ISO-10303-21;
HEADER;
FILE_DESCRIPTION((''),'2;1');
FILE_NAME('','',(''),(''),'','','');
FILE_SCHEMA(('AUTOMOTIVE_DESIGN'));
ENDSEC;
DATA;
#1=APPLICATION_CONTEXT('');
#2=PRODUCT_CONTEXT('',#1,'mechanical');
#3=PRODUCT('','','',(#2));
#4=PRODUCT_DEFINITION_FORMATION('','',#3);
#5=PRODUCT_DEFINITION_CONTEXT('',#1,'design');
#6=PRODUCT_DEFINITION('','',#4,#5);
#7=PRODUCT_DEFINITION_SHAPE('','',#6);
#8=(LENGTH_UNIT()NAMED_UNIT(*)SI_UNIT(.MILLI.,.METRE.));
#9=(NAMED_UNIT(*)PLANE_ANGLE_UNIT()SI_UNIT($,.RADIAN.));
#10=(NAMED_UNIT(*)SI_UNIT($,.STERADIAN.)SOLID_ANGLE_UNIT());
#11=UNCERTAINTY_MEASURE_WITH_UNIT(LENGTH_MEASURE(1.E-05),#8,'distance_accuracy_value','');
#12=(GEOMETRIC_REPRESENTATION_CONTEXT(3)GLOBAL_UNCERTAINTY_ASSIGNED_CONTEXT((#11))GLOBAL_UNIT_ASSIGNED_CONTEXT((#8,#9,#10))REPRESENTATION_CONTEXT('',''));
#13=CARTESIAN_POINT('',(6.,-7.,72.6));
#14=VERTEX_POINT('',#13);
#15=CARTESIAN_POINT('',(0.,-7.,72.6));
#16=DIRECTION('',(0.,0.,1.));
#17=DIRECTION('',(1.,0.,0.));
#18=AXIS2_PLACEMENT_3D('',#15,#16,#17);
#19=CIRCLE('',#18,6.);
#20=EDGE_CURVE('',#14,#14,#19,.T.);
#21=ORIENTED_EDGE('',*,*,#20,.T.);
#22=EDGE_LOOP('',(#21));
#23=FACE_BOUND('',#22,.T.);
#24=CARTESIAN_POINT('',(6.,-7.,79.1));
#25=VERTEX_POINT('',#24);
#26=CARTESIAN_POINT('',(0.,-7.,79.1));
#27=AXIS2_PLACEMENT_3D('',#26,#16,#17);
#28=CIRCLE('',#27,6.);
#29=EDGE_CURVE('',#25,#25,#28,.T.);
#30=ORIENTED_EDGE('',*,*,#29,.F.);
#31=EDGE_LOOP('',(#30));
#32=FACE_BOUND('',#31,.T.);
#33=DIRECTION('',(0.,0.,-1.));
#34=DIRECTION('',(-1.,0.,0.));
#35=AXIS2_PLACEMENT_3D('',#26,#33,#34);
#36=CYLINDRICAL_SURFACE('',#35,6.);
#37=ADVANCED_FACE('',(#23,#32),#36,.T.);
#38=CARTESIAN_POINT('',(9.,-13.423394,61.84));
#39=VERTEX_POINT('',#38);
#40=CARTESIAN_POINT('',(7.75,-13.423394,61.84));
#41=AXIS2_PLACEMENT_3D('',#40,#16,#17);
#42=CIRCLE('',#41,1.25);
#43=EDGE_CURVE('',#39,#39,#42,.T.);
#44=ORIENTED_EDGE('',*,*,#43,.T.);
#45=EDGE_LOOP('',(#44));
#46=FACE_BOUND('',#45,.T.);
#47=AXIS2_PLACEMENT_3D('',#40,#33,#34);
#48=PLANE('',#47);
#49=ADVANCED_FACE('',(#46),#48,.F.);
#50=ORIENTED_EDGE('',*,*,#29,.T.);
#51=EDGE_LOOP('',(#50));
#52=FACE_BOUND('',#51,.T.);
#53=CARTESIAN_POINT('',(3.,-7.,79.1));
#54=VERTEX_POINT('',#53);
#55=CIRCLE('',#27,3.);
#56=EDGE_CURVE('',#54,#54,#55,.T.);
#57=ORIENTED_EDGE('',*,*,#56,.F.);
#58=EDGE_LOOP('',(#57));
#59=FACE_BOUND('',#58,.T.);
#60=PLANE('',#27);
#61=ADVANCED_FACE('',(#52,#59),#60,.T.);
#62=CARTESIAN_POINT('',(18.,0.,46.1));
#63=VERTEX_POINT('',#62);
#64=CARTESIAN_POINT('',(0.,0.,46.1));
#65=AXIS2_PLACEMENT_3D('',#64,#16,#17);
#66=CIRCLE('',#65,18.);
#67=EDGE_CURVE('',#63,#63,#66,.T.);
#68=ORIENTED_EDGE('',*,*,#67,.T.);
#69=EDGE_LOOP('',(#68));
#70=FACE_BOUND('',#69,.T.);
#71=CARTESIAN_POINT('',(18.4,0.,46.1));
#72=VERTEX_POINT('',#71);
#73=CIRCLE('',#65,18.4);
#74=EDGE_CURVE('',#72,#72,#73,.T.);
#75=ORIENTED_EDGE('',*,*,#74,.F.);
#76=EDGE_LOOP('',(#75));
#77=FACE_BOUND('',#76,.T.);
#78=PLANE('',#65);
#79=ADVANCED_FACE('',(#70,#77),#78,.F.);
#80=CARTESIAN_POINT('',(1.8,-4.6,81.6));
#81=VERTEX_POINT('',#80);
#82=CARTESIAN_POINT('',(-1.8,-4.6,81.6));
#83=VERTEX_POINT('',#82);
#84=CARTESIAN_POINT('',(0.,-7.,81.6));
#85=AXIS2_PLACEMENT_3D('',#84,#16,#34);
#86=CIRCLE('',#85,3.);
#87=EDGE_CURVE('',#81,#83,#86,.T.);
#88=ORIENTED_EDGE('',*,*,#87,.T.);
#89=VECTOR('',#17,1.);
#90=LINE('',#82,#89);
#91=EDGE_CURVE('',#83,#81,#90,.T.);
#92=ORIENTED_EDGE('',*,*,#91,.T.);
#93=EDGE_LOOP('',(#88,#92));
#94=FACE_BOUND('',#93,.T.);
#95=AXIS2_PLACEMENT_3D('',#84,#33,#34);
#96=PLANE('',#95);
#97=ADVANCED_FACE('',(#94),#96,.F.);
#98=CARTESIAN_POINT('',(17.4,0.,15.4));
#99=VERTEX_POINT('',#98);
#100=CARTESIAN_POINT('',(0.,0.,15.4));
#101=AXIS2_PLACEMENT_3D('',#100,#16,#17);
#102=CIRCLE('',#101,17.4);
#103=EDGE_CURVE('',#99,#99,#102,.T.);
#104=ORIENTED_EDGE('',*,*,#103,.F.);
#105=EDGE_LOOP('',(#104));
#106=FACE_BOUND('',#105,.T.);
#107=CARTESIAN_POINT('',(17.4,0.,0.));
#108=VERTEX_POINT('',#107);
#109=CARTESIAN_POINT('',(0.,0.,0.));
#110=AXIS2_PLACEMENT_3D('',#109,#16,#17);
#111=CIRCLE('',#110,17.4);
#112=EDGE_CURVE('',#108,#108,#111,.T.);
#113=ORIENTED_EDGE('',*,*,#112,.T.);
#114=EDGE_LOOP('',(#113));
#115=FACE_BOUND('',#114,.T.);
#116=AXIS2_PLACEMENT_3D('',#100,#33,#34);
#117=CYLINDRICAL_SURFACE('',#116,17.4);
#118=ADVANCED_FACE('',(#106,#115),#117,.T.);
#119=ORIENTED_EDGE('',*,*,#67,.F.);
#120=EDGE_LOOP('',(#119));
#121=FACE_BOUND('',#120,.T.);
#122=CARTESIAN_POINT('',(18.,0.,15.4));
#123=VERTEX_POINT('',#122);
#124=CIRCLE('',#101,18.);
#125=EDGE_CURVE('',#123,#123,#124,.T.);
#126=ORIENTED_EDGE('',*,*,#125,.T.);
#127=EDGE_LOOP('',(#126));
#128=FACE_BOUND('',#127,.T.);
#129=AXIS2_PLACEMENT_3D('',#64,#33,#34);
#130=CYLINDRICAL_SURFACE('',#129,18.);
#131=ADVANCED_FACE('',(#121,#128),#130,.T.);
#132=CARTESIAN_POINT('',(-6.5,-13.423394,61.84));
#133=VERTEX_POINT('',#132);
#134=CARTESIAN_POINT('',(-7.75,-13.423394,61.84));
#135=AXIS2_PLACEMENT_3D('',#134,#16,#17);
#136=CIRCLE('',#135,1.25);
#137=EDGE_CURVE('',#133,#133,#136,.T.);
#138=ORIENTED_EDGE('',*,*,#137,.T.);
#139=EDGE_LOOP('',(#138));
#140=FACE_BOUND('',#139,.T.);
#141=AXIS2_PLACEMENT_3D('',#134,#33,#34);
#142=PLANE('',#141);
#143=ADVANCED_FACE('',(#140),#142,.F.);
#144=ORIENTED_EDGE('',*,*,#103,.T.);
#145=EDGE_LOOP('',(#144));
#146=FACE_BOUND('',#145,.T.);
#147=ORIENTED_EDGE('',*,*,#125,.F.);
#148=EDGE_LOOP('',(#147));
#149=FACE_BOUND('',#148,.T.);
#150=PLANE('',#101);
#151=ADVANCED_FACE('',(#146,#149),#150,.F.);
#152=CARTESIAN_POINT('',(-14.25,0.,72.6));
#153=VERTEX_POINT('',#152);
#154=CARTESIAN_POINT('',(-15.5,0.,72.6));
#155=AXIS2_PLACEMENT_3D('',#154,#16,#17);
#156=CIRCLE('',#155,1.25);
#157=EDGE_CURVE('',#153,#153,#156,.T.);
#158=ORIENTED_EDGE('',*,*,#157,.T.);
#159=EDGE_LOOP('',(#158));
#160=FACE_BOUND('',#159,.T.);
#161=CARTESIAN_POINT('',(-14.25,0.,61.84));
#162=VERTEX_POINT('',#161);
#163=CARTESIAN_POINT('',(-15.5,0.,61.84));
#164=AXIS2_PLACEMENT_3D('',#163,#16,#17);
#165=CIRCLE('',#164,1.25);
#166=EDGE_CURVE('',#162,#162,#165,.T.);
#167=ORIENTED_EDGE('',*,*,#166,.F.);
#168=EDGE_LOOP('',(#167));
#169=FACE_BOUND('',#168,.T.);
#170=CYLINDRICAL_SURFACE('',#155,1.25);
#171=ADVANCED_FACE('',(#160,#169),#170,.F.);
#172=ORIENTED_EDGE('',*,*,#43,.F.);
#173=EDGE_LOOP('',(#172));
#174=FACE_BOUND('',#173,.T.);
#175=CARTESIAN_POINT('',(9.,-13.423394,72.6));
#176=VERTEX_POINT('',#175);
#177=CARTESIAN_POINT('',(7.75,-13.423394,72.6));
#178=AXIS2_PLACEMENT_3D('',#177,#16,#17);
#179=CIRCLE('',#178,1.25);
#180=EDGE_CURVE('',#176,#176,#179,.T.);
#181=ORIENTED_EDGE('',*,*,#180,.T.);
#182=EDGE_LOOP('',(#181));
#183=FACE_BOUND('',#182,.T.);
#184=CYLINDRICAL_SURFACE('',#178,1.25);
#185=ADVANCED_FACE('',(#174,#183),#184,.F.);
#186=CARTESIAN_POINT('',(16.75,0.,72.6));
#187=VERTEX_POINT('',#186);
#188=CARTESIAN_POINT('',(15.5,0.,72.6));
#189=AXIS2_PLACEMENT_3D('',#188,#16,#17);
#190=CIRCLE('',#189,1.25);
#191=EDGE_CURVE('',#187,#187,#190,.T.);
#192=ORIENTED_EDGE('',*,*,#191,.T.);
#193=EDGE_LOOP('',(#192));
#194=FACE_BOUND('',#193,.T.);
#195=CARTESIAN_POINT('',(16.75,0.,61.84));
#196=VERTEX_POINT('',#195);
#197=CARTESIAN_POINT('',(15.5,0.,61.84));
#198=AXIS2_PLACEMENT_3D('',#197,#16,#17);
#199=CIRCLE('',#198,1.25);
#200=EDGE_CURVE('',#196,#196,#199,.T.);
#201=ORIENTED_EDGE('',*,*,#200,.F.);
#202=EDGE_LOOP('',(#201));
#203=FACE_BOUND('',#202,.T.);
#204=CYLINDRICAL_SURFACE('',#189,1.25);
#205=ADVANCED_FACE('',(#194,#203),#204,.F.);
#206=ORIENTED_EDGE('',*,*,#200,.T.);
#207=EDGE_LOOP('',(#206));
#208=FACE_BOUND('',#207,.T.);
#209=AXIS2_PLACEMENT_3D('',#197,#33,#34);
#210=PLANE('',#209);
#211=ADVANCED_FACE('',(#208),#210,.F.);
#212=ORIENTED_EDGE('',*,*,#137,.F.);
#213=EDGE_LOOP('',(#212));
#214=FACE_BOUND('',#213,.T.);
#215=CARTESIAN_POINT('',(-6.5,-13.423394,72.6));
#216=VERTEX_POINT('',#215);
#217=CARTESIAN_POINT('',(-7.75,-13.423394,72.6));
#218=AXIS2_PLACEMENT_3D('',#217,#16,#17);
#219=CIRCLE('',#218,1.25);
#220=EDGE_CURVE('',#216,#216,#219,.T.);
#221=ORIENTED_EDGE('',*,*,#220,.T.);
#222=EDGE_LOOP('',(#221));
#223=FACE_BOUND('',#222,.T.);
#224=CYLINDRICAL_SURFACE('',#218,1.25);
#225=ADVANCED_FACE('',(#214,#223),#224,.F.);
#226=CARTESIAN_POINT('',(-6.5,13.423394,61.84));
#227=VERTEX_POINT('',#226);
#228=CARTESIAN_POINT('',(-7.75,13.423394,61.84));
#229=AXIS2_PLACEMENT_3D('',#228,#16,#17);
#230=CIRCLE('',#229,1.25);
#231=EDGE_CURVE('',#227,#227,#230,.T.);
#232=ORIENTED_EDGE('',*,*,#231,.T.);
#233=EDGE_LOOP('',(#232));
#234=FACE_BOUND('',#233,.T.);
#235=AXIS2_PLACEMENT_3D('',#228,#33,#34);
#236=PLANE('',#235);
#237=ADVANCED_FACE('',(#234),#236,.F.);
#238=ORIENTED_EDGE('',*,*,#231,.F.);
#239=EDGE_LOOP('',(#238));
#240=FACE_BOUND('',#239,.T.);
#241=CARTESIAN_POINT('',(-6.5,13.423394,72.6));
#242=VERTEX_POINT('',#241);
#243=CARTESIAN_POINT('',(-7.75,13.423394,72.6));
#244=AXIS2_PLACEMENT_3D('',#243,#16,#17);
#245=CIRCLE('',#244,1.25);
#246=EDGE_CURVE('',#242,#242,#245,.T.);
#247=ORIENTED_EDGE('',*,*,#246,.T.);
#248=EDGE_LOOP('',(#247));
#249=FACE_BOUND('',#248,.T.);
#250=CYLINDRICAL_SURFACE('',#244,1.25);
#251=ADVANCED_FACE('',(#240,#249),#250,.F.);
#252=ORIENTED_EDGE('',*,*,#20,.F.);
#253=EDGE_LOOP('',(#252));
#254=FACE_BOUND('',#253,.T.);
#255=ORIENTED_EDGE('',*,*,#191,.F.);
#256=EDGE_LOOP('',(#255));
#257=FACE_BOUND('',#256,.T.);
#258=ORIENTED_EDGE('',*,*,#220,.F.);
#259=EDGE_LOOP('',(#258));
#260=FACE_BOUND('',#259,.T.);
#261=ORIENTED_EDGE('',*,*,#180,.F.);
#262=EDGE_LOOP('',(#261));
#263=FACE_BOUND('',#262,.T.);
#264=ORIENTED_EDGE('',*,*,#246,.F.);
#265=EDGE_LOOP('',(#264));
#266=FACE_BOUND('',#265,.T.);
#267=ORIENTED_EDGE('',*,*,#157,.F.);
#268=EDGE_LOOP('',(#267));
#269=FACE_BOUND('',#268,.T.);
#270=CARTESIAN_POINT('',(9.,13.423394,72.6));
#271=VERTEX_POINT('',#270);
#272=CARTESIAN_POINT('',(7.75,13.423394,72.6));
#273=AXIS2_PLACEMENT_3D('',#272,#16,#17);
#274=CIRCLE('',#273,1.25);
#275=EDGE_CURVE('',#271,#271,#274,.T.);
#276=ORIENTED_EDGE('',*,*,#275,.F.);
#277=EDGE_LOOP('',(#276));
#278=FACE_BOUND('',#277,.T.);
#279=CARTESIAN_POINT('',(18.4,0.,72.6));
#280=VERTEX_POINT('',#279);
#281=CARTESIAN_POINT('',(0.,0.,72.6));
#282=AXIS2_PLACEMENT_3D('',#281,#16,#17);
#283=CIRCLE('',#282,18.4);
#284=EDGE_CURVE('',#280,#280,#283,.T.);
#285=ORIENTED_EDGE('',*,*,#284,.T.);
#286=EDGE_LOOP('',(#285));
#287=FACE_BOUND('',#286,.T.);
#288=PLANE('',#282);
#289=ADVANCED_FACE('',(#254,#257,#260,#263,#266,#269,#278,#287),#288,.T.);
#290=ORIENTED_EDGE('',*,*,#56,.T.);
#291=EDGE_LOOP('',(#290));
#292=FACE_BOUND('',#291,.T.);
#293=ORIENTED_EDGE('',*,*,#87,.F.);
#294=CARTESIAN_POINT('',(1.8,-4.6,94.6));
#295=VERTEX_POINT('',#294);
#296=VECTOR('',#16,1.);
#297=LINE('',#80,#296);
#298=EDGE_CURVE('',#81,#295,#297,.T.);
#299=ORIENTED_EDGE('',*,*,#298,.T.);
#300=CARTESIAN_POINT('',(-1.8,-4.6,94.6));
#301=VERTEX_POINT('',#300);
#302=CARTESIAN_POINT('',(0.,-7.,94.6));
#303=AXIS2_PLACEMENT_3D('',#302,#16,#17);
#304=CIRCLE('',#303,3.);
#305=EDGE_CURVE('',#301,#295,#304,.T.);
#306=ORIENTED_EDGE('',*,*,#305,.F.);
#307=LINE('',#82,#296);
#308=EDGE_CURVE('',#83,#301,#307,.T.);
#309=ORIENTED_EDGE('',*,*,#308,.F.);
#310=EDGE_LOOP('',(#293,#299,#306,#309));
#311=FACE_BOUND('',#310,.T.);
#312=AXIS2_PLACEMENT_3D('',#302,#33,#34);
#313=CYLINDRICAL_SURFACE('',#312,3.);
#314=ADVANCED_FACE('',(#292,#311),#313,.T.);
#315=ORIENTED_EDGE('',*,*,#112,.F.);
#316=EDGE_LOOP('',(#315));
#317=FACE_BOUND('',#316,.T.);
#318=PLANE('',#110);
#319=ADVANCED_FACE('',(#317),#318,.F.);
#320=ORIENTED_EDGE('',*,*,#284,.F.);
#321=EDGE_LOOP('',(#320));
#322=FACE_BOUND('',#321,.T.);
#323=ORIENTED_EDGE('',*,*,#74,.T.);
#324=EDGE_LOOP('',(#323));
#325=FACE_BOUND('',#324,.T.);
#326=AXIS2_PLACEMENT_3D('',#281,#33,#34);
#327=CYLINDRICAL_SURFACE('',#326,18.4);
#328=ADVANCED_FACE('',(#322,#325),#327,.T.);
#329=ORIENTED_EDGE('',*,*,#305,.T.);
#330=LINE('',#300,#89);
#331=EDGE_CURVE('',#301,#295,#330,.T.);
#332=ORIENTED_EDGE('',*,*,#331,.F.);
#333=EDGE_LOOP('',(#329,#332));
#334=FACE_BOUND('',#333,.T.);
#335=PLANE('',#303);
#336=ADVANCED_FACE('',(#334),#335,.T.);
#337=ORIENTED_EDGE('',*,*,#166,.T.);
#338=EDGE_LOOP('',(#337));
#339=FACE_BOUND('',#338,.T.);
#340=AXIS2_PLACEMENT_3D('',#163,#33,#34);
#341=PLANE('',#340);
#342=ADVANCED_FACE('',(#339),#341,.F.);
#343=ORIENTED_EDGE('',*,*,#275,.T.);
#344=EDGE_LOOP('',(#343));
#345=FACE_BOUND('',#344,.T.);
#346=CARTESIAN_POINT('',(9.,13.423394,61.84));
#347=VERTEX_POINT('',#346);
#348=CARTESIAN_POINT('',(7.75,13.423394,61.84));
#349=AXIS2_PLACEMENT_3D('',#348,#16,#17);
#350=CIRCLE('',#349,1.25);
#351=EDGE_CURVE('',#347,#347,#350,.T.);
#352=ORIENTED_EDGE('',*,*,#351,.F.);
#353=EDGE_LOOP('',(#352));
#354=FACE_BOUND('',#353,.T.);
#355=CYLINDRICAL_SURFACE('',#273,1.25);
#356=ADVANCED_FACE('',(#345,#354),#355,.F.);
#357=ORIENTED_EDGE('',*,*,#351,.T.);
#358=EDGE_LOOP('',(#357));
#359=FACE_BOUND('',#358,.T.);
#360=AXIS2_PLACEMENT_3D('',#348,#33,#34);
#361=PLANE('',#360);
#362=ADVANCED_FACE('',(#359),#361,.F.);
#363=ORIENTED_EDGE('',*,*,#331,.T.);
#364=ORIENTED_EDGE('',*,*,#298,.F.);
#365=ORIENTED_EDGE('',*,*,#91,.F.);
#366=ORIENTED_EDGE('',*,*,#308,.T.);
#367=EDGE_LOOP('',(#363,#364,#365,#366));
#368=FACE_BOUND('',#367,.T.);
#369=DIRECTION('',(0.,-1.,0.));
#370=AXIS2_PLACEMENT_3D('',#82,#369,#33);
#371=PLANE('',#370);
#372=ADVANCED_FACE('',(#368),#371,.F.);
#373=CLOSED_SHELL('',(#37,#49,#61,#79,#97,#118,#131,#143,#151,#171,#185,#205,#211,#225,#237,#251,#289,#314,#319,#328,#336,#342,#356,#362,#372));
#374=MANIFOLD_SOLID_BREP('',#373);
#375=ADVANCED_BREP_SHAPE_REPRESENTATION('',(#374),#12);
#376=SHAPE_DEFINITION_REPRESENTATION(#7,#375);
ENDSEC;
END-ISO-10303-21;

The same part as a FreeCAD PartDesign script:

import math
import FreeCAD as App
import Part
import Sketcher

doc = App.newDocument("Part")
body = doc.addObject("PartDesign::Body", "Body")

# Sketch on XY plane
sketch1 = body.newObject("Sketcher::SketchObject", "Sketch")
sketch1.AttachmentSupport = (doc.getObject("XY_Plane"), [""])
sketch1.MapMode = "FlatFace"
sketch1.addGeometry(Part.Circle(App.Vector(0, 0, 0), App.Vector(0, 0, 1), 17.4), False)
sketch1.addConstraint([
    Sketcher.Constraint("Coincident", 0, 3, -1, 1),
    Sketcher.Constraint("Diameter", 0, 34.8),
])
pad1 = body.newObject("PartDesign::Pad", "Pad")
pad1.Profile = sketch1
pad1.Length = 15.4

# Sketch on XY plane
sketch2 = body.newObject("Sketcher::SketchObject", "Sketch001")
sketch2.AttachmentSupport = (doc.getObject("XY_Plane"), [""])
sketch2.MapMode = "FlatFace"
sketch2.AttachmentOffset = App.Placement(App.Vector(0, 0, 15.4), App.Rotation())
sketch2.addGeometry(Part.Circle(App.Vector(0, 0, 0), App.Vector(0, 0, 1), 18), False)
sketch2.addConstraint([
    Sketcher.Constraint("Coincident", 0, 3, -1, 1),
    Sketcher.Constraint("Diameter", 0, 36.0),
])
pad2 = body.newObject("PartDesign::Pad", "Pad001")
pad2.Profile = sketch2
pad2.Length = 30.7

# Sketch on XY plane
sketch3 = body.newObject("Sketcher::SketchObject", "Sketch002")
sketch3.AttachmentSupport = (doc.getObject("XY_Plane"), [""])
sketch3.MapMode = "FlatFace"
sketch3.AttachmentOffset = App.Placement(App.Vector(0, 0, 46.1), App.Rotation())
sketch3.addGeometry(Part.Circle(App.Vector(0, 0, 0), App.Vector(0, 0, 1), 18.4), False)
sketch3.addConstraint([
    Sketcher.Constraint("Coincident", 0, 3, -1, 1),
    Sketcher.Constraint("Diameter", 0, 36.8),
])
pad3 = body.newObject("PartDesign::Pad", "Pad002")
pad3.Profile = sketch3
pad3.Length = 26.5

# Sketch on XY plane
sketch4 = body.newObject("Sketcher::SketchObject", "Sketch003")
sketch4.AttachmentSupport = (doc.getObject("XY_Plane"), [""])
sketch4.MapMode = "FlatFace"
sketch4.AttachmentOffset = App.Placement(App.Vector(0, 0, 72.6), App.Rotation())
sketch4.addGeometry(Part.Circle(App.Vector(0, -7, 0), App.Vector(0, 0, 1), 6), False)
sketch4.addConstraint([
    Sketcher.Constraint("PointOnObject", 0, 3, -2),
    Sketcher.Constraint("Diameter", 0, 12.0),
    Sketcher.Constraint("DistanceY", 0, 3, -1, 1, 7.0),
])
pad4 = body.newObject("PartDesign::Pad", "Pad003")
pad4.Profile = sketch4
pad4.Length = 6.5

# Sketch on XY plane
sketch5 = body.newObject("Sketcher::SketchObject", "Sketch004")
sketch5.AttachmentSupport = (doc.getObject("XY_Plane"), [""])
sketch5.MapMode = "FlatFace"
sketch5.AttachmentOffset = App.Placement(App.Vector(0, 0, 79.1), App.Rotation())
sketch5.addGeometry(Part.Circle(App.Vector(0, -7, 0), App.Vector(0, 0, 1), 3), False)
sketch5.addConstraint([
    Sketcher.Constraint("PointOnObject", 0, 3, -2),
    Sketcher.Constraint("Diameter", 0, 6.0),
    Sketcher.Constraint("DistanceY", 0, 3, -1, 1, 7.0),
])
pad5 = body.newObject("PartDesign::Pad", "Pad004")
pad5.Profile = sketch5
pad5.Length = 15.5

# Sketch on XY plane
sketch6 = body.newObject("Sketcher::SketchObject", "Sketch005")
sketch6.AttachmentSupport = (doc.getObject("XY_Plane"), [""])
sketch6.MapMode = "FlatFace"
sketch6.AttachmentOffset = App.Placement(App.Vector(0, 0, 94.6), App.Rotation())
sketch6.addGeometry([
    Part.LineSegment(App.Vector(-1.8, -4.6, 0), App.Vector(1.8, -4.6, 0)),
    Part.ArcOfCircle(Part.Circle(App.Vector(0, -7, 0), App.Vector(0, 0, 1), 3), math.radians(53.130102), math.radians(126.869898)),
], False)
sketch6.addConstraint([
    Sketcher.Constraint("Coincident", 0, 1, 1, 2),
    Sketcher.Constraint("Coincident", 1, 1, 0, 2),
    Sketcher.Constraint("Horizontal", 0),
    Sketcher.Constraint("PointOnObject", 1, 3, -2),
    Sketcher.Constraint("Radius", 1, 3.0),
    Sketcher.Constraint("DistanceX", 0, 1, 0, 2, 3.6),
    Sketcher.Constraint("DistanceY", 1, 3, -1, 1, 7.0),
])
pocket1 = body.newObject("PartDesign::Pocket", "Pocket")
pocket1.Profile = sketch6
pocket1.Length = 13

# Sketch on XY plane
sketch7 = body.newObject("Sketcher::SketchObject", "Sketch006")
sketch7.AttachmentSupport = (doc.getObject("XY_Plane"), [""])
sketch7.MapMode = "FlatFace"
sketch7.AttachmentOffset = App.Placement(App.Vector(0, 0, 72.6), App.Rotation())
sketch7.addGeometry([
    Part.Circle(App.Vector(-15.5, 0, 0), App.Vector(0, 0, 1), 1.25),  # 0
    Part.Circle(App.Vector(-7.75, 13.423394, 0), App.Vector(0, 0, 1), 1.25),  # 1
    Part.Circle(App.Vector(7.75, 13.423394, 0), App.Vector(0, 0, 1), 1.25),  # 2
    Part.Circle(App.Vector(15.5, 0, 0), App.Vector(0, 0, 1), 1.25),  # 3
    Part.Circle(App.Vector(7.75, -13.423394, 0), App.Vector(0, 0, 1), 1.25),  # 4
    Part.Circle(App.Vector(-7.75, -13.423394, 0), App.Vector(0, 0, 1), 1.25),  # 5
], False)
sketch7.addConstraint([
    Sketcher.Constraint("Equal", 0, 1),
    Sketcher.Constraint("Equal", 1, 2),
    Sketcher.Constraint("Equal", 2, 3),
    Sketcher.Constraint("Equal", 3, 4),
    Sketcher.Constraint("Equal", 4, 5),
    Sketcher.Constraint("Symmetric", 0, 3, 3, 3, -1, 1),
    Sketcher.Constraint("Symmetric", 1, 3, 4, 3, -1, 1),
    Sketcher.Constraint("Symmetric", 2, 3, 5, 3, -1, 1),
    Sketcher.Constraint("Symmetric", 1, 3, 2, 3, -2),
    Sketcher.Constraint("PointOnObject", 0, 3, -1),
    Sketcher.Constraint("Diameter", 0, 2.5),
    Sketcher.Constraint("DistanceX", 0, 3, 3, 3, 31.0),
    Sketcher.Constraint("DistanceX", 1, 3, 2, 3, 15.5),
    Sketcher.Constraint("DistanceY", -1, 1, 1, 3, 13.423394),
])
doc.recompute()
hole = body.newObject("PartDesign::Hole", "Hole")
hole.Profile = sketch7
hole.ThreadType = "None"
hole.Diameter = 2.5
hole.DepthType = "Dimension"
hole.Depth = 10.76
hole.DrillPoint = "Flat"

doc.recompute()
